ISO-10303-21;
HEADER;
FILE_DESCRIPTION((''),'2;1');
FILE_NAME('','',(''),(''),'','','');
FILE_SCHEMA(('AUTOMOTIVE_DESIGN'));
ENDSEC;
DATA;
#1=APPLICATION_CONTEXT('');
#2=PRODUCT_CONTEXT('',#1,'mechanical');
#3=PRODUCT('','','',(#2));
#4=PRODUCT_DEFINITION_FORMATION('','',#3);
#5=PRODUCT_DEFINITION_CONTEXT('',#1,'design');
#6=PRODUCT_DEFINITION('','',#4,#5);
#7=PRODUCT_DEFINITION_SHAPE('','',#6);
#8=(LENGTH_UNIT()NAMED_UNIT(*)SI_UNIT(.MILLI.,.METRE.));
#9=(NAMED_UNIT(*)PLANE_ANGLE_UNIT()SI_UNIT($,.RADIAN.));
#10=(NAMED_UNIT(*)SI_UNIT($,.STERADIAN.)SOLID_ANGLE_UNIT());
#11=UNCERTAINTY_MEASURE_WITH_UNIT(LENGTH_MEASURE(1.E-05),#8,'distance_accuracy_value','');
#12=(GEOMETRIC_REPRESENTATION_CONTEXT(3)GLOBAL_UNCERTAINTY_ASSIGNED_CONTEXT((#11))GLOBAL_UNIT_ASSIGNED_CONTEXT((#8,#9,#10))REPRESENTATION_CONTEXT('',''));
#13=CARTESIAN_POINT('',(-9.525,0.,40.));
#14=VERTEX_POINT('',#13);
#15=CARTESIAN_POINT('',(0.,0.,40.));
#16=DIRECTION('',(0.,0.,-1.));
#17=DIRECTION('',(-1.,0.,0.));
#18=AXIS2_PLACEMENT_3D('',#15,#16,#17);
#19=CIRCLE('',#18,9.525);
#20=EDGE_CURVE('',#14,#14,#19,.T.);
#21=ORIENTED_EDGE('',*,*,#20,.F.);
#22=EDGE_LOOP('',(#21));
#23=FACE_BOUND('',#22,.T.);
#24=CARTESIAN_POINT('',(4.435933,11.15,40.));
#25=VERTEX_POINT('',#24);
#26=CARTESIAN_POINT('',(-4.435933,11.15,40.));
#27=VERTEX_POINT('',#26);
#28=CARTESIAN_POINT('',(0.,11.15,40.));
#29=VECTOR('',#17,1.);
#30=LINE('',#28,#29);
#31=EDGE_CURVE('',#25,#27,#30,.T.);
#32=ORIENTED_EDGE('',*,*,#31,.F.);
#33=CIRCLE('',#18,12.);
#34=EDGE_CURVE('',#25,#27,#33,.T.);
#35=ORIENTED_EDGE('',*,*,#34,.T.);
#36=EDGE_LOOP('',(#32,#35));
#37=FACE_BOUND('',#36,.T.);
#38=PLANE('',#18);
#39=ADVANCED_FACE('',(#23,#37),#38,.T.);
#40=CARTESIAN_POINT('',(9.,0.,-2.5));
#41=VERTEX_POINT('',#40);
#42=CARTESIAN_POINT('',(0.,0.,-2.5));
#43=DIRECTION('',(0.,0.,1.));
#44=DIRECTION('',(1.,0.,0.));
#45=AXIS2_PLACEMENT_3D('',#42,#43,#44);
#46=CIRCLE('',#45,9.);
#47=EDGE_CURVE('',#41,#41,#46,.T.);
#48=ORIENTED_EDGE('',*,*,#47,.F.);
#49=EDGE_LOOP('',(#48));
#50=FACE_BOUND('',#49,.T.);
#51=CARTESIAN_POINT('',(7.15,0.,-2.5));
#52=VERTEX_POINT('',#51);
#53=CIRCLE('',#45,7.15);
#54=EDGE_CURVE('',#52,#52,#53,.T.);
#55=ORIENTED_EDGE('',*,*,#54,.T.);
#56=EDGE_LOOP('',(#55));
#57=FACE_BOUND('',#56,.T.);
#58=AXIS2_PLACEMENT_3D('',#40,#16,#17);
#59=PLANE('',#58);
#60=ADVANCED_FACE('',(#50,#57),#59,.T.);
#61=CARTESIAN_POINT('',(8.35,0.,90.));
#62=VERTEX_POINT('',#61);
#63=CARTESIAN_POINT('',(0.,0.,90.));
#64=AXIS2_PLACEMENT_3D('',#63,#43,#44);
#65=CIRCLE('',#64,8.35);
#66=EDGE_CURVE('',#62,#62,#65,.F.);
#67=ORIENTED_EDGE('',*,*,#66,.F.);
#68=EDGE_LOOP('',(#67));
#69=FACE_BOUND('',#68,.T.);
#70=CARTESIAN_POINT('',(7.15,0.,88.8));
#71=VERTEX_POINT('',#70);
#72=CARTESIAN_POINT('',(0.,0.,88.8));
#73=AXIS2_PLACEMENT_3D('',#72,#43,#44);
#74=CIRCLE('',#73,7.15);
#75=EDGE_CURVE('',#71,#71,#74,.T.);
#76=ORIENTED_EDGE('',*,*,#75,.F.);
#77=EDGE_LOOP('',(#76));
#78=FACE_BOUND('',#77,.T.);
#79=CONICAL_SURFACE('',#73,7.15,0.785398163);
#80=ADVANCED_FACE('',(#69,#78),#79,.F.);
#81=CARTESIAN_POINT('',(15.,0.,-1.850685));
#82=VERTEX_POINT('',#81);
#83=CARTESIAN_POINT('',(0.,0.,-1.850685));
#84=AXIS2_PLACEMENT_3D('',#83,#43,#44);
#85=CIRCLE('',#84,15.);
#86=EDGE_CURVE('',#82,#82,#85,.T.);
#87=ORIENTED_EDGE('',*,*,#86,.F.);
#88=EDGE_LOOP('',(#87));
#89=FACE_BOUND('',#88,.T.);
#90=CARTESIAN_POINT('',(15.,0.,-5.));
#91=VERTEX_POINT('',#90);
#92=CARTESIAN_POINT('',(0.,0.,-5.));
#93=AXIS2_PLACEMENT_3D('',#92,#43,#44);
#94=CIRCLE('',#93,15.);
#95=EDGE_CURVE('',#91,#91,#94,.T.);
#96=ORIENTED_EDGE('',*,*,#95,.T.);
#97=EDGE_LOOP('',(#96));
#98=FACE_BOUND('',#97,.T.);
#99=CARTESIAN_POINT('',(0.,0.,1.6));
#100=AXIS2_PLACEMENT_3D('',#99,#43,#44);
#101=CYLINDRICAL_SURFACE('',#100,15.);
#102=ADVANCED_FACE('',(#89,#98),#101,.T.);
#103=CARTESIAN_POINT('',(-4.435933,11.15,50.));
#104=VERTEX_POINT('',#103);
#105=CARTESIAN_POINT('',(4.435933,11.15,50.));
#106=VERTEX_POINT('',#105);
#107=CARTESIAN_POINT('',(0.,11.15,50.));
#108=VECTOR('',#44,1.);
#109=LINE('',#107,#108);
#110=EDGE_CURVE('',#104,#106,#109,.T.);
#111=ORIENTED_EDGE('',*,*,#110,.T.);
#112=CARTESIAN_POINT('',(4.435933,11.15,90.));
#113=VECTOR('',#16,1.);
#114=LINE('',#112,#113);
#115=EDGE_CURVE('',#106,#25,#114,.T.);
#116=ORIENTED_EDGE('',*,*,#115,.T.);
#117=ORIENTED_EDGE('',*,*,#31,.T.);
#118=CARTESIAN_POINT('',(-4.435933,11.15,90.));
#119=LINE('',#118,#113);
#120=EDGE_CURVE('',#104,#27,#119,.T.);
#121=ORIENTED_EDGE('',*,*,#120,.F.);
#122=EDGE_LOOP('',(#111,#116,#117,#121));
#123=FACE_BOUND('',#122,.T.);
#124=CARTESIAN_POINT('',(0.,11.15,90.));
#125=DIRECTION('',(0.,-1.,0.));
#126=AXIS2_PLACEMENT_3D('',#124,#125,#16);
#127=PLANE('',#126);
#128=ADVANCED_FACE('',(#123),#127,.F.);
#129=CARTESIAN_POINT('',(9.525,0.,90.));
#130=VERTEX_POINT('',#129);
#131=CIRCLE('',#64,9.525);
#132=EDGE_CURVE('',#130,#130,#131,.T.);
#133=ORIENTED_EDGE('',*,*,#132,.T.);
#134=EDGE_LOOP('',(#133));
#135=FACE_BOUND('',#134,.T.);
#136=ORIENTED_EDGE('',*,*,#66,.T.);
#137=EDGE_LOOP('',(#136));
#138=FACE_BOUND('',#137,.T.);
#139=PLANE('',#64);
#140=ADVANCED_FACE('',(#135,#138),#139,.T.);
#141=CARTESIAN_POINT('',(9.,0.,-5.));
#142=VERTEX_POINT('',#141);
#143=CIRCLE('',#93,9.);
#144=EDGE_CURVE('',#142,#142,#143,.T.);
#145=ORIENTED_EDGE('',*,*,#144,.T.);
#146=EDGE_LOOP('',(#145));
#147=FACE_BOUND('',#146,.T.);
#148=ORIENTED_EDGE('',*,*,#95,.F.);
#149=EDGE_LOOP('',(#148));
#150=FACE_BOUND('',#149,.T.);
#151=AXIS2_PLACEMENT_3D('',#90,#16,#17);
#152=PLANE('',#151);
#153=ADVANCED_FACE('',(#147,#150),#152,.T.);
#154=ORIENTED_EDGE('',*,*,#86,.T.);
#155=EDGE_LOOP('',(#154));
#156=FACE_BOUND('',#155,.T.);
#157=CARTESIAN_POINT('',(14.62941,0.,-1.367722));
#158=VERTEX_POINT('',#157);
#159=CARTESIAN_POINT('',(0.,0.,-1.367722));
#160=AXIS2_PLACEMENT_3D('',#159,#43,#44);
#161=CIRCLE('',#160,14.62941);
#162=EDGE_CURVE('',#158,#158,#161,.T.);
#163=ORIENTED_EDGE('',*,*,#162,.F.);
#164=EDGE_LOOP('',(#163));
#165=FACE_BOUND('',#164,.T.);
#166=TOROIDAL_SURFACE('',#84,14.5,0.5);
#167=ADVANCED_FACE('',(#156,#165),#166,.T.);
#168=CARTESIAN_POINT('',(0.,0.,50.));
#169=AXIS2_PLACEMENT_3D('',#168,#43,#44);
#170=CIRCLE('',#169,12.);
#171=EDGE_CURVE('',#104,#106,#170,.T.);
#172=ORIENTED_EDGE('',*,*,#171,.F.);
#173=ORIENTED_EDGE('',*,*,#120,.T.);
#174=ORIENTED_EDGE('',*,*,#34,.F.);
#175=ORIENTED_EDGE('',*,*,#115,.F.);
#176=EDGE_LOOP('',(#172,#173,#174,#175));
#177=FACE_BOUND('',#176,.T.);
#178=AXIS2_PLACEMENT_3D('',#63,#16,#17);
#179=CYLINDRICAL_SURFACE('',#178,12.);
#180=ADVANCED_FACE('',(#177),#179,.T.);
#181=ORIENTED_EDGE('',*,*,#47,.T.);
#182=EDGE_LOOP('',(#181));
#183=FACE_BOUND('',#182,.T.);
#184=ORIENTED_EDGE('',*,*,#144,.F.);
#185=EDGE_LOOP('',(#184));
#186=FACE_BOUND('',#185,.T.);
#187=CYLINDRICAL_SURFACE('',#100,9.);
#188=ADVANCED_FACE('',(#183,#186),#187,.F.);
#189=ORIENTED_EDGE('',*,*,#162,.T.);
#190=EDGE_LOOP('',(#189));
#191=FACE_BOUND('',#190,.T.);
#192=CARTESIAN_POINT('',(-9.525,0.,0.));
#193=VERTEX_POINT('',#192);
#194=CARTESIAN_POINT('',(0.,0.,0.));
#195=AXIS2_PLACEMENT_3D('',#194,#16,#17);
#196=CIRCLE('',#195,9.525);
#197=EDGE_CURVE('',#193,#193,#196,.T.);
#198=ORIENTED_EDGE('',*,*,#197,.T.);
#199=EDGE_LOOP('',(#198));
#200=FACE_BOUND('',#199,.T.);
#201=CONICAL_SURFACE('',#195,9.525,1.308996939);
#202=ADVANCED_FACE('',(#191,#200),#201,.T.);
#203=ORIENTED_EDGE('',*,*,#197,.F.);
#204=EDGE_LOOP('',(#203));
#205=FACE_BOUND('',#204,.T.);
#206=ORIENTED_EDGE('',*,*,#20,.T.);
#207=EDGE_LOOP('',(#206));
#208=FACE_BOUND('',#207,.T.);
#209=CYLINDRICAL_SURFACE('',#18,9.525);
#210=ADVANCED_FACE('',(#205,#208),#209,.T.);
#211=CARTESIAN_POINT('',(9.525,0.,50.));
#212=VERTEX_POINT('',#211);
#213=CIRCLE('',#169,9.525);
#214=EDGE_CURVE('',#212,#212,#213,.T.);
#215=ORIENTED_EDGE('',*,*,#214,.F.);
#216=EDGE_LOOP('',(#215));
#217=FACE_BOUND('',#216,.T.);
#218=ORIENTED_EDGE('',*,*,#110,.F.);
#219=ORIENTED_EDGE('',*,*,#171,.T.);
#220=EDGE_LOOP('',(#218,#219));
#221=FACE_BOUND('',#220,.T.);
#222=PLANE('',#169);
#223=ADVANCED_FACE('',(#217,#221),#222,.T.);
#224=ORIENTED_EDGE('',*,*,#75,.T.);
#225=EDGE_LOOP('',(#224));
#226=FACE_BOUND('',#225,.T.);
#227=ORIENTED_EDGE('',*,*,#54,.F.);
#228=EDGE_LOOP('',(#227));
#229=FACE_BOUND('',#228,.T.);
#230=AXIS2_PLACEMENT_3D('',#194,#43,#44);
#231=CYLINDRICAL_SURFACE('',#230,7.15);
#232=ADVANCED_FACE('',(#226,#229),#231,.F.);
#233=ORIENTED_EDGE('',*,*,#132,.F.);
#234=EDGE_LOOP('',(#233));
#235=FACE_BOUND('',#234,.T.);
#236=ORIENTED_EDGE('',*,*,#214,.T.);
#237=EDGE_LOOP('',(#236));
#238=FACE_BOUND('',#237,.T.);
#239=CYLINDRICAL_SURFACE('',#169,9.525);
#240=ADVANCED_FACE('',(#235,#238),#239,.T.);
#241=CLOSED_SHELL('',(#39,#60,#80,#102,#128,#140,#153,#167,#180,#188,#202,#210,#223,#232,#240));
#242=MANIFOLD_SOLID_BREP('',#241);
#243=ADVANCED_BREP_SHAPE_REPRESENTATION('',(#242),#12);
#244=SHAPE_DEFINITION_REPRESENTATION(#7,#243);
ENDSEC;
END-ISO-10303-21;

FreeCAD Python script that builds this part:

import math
import FreeCAD as App
import Part
import Sketcher
Q = App.Units.Quantity


def edges_at(feature, points):
    """Names of the edges that pass closest to the given points."""
    edges = feature.Shape.Edges
    near = lambda p: min(range(len(edges)), key=lambda i: edges[i].distToShape(Part.Vertex(*p))[0])
    return sorted({f"Edge{near(p) + 1}" for p in points})


def add_polygon(sketch, points):
    """Adds a closed chain of lines whose ends are joined by coincident constraints."""
    first, n = sketch.GeometryCount, len(points)
    for a, b in zip(points, points[1:] + points[:1]):
        sketch.addGeometry(Part.LineSegment(App.Vector(*a, 0), App.Vector(*b, 0)), False)
    for i in range(n):
        sketch.addConstraint(Sketcher.Constraint("Coincident", first + i, 2, first + (i + 1) % n, 1))

doc = App.newDocument("Part")
params = doc.addObject("Spreadsheet::Sheet", "Params")
for row, (alias, value) in enumerate([
    ("sketch1_diameter", "24 mm"),
    ("pad1_length", "90 mm"),
    ("sketch2_diameter", "19.05 mm"),
    ("pocket1_length", "40 mm"),
    ("sketch3_diameter", "19.05 mm"),
    ("pocket2_length", "40 mm"),
    ("sketch4_diameter", "14.3 mm"),
    ("chamfer_size", "1.2 mm"),
    ("sketch6_radius", "0.5 mm"),
    ("sketch6_width", "6 mm"),
    ("sketch6_height", "2.5 mm"),
    ("sketch6_width2", "1.85 mm"),
    ("revolution_angle", "360 deg"),
], start=1):
    params.set(f"A{row}", alias)
    params.set(f"B{row}", "=" + value)
    params.setAlias(f"B{row}", alias)

body = doc.addObject("PartDesign::Body", "Body")

# Sketch on XY plane
sketch1 = doc.addObject("Sketcher::SketchObject", "Sketch")
body.addObject(sketch1)
sketch1.AttachmentSupport = (doc.XY_Plane, [""])
sketch1.MapMode = "FlatFace"
sketch1.addGeometry(Part.Circle(App.Vector(0, 0, 0), App.Vector(0, 0, 1), 12), False)
sketch1.addConstraint([
    Sketcher.Constraint("Coincident", 0, 3, -1, 1),
    Sketcher.Constraint("Diameter", 0, 24.0),
])
sketch1.setExpression("Constraints[1]", "Params.sketch1_diameter")
pad1 = doc.addObject("PartDesign::Pad", "Pad")
body.addObject(pad1)
pad1.Profile = sketch1
pad1.setExpression("Length", "Params.pad1_length")

# Sketch on XY plane
sketch2 = doc.addObject("Sketcher::SketchObject", "Sketch001")
body.addObject(sketch2)
sketch2.AttachmentSupport = (doc.XY_Plane, [""])
sketch2.MapMode = "FlatFace"
sketch2.AttachmentOffset = App.Placement(App.Vector(0, 0, 90), App.Rotation())
add_polygon(sketch2, [(-23, 23), (-23, -23), (23, -23), (23, 23)])  # lines 0-3
sketch2.addGeometry(Part.Circle(App.Vector(0, 0, 0), App.Vector(0, 0, 1), 10), False)  # 4
sketch2.addConstraint([
    Sketcher.Constraint("Vertical", 0),
    Sketcher.Constraint("Horizontal", 1),
    Sketcher.Constraint("Vertical", 2),
    Sketcher.Constraint("Horizontal", 3),
    Sketcher.Constraint("Coincident", 4, 3, -1, 1),
    Sketcher.Constraint("Symmetric", 0, 2, 2, 2, -1, 1),
    Sketcher.Constraint("Equal", 3, 0),
    Sketcher.Constraint("Diameter", 4, 19.05),
    Sketcher.Constraint("DistanceX", 1, 1, 1, 2, 45.238),
])
sketch2.setExpression("Constraints[11]", "Params.sketch2_diameter")
pocket1 = doc.addObject("PartDesign::Pocket", "Pocket")
body.addObject(pocket1)
pocket1.Profile = sketch2
pocket1.setExpression("Length", "Params.pocket1_length")

# Sketch on XY plane
sketch3 = doc.addObject("Sketcher::SketchObject", "Sketch002")
body.addObject(sketch3)
sketch3.AttachmentSupport = (doc.XY_Plane, [""])
sketch3.MapMode = "FlatFace"
add_polygon(sketch3, [(23, 23), (23, -23), (-23, -23), (-23, 23)])  # lines 0-3
sketch3.addGeometry(Part.Circle(App.Vector(0, 0, 0), App.Vector(0, 0, 1), 10), False)  # 4
sketch3.addConstraint([
    Sketcher.Constraint("Vertical", 0),
    Sketcher.Constraint("Horizontal", 1),
    Sketcher.Constraint("Vertical", 2),
    Sketcher.Constraint("Horizontal", 3),
    Sketcher.Constraint("Coincident", 4, 3, -1, 1),
    Sketcher.Constraint("Symmetric", 0, 2, 2, 2, -1, 1),
    Sketcher.Constraint("Equal", 3, 0),
    Sketcher.Constraint("Diameter", 4, 19.05),
    Sketcher.Constraint("DistanceX", 1, 2, 1, 1, 45.238),
])
sketch3.setExpression("Constraints[11]", "Params.sketch3_diameter")
pocket2 = doc.addObject("PartDesign::Pocket", "Pocket001")
body.addObject(pocket2)
pocket2.Profile = sketch3
pocket2.setExpression("Length", "Params.pocket2_length")
pocket2.Reversed = True

# Sketch on XY plane
sketch4 = doc.addObject("Sketcher::SketchObject", "Sketch003")
body.addObject(sketch4)
sketch4.AttachmentSupport = (doc.XY_Plane, [""])
sketch4.MapMode = "FlatFace"
sketch4.AttachmentOffset = App.Placement(App.Vector(0, 0, 90), App.Rotation())
sketch4.addGeometry(Part.Circle(App.Vector(0, 0, 0), App.Vector(0, 0, 1), 7), False)
sketch4.addConstraint([
    Sketcher.Constraint("Coincident", 0, 3, -1, 1),
    Sketcher.Constraint("Diameter", 0, 14.3),
])
sketch4.setExpression("Constraints[1]", "Params.sketch4_diameter")
pocket3 = doc.addObject("PartDesign::Pocket", "Pocket002")
body.addObject(pocket3)
pocket3.Profile = sketch4
pocket3.Type = "ThroughAll"
doc.recompute()

chamfer = doc.addObject("PartDesign::Chamfer", "Chamfer")
body.addObject(chamfer)
chamfer.Base = (pocket3, edges_at(pocket3, [(-7.15, 0, 90)]))
chamfer.setExpression("Size", "Params.chamfer_size")

# Sketch on XY plane
sketch5 = doc.addObject("Sketcher::SketchObject", "Sketch004")
body.addObject(sketch5)
sketch5.AttachmentSupport = (doc.XY_Plane, [""])
sketch5.MapMode = "FlatFace"
add_polygon(sketch5, [(4.4, 11.2), (-4.4, 11.2), (-4.4, 13.9), (4.4, 13.9)])  # lines 0-3
sketch5.addConstraint([
    Sketcher.Constraint("Horizontal", 0),
    Sketcher.Constraint("Vertical", 1),
    Sketcher.Constraint("Horizontal", 2),
    Sketcher.Constraint("Vertical", 3),
    Sketcher.Constraint("DistanceY", -1, 1, 0, 2, 11.15),
    Sketcher.Constraint("DistanceY", 1, 1, 1, 2, 2.72296),
    Sketcher.Constraint("DistanceX", 0, 2, 0, 1, 8.871866),
    Sketcher.Constraint("DistanceX", 0, 2, -1, 1, 4.435933),
])
pocket4 = doc.addObject("PartDesign::Pocket", "Pocket003")
body.addObject(pocket4)
pocket4.Profile = sketch5
pocket4.Type = "ThroughAll"
pocket4.Reversed = True

# Sketch on XZ plane
sketch6 = doc.addObject("Sketcher::SketchObject", "Sketch005")
body.addObject(sketch6)
sketch6.AttachmentSupport = (doc.XZ_Plane, [""])
sketch6.MapMode = "FlatFace"
sketch6.addGeometry([
    Part.LineSegment(App.Vector(9.5, 0, 0), App.Vector(14.6, -1.4, 0)),  # 0
    Part.ArcOfCircle(Part.Circle(App.Vector(14.5, -1.9, 0), App.Vector(0, 0, 1), 0.5), math.radians(0), math.radians(75)),  # 1
    Part.LineSegment(App.Vector(15, -1.9, 0), App.Vector(15, -5, 0)),  # 2
    Part.LineSegment(App.Vector(15, -5, 0), App.Vector(9, -5, 0)),  # 3
    Part.LineSegment(App.Vector(9, -5, 0), App.Vector(9, -2.5, 0)),  # 4
    Part.LineSegment(App.Vector(9, -2.5, 0), App.Vector(7.2, -2.5, 0)),  # 5
    Part.LineSegment(App.Vector(7.2, -2.5, 0), App.Vector(7.2, 0, 0)),  # 6
    Part.LineSegment(App.Vector(7.2, 0, 0), App.Vector(9.5, 0, 0)),  # 7
], False)
sketch6.addConstraint([
    Sketcher.Constraint("Tangent", 0, 2, 1, 2),
    Sketcher.Constraint("Tangent", 1, 1, 2, 1),
    Sketcher.Constraint("Coincident", 2, 2, 3, 1),
    Sketcher.Constraint("Coincident", 3, 2, 4, 1),
    Sketcher.Constraint("Coincident", 4, 2, 5, 1),
    Sketcher.Constraint("Coincident", 5, 2, 6, 1),
    Sketcher.Constraint("Coincident", 6, 2, 7, 1),
    Sketcher.Constraint("Coincident", 7, 2, 0, 1),
    Sketcher.Constraint("Vertical", 2),
    Sketcher.Constraint("Horizontal", 3),
    Sketcher.Constraint("Vertical", 4),
    Sketcher.Constraint("Horizontal", 5),
    Sketcher.Constraint("Vertical", 6),
    Sketcher.Constraint("Horizontal", 7),
    Sketcher.Constraint("PointOnObject", 6, 2, -1),
    Sketcher.Constraint("Equal", 4, 6),
    Sketcher.Constraint("Radius", 1, 0.5),
    Sketcher.Constraint("DistanceX", 3, 2, 3, 1, 6.0),
    Sketcher.Constraint("Angle", 0, Q("-15 deg")),
    Sketcher.Constraint("DistanceY", 4, 1, 4, 2, 2.5),
    Sketcher.Constraint("DistanceX", -1, 1, 1, 1, 15.0),
    Sketcher.Constraint("DistanceX", 5, 2, 5, 1, 1.85),
    Sketcher.Constraint("DistanceX", 7, 1, 7, 2, 2.375),
])
sketch6.setExpression("Constraints[16]", "Params.sketch6_radius")
sketch6.setExpression("Constraints[17]", "Params.sketch6_width")
sketch6.setExpression("Constraints[19]", "Params.sketch6_height")
sketch6.setExpression("Constraints[21]", "Params.sketch6_width2")
revolution = doc.addObject("PartDesign::Revolution", "Revolution")
body.addObject(revolution)
revolution.Profile = sketch6
revolution.ReferenceAxis = (sketch6, ["V_Axis"])
revolution.setExpression("Angle", "Params.revolution_angle")

doc.recompute()
